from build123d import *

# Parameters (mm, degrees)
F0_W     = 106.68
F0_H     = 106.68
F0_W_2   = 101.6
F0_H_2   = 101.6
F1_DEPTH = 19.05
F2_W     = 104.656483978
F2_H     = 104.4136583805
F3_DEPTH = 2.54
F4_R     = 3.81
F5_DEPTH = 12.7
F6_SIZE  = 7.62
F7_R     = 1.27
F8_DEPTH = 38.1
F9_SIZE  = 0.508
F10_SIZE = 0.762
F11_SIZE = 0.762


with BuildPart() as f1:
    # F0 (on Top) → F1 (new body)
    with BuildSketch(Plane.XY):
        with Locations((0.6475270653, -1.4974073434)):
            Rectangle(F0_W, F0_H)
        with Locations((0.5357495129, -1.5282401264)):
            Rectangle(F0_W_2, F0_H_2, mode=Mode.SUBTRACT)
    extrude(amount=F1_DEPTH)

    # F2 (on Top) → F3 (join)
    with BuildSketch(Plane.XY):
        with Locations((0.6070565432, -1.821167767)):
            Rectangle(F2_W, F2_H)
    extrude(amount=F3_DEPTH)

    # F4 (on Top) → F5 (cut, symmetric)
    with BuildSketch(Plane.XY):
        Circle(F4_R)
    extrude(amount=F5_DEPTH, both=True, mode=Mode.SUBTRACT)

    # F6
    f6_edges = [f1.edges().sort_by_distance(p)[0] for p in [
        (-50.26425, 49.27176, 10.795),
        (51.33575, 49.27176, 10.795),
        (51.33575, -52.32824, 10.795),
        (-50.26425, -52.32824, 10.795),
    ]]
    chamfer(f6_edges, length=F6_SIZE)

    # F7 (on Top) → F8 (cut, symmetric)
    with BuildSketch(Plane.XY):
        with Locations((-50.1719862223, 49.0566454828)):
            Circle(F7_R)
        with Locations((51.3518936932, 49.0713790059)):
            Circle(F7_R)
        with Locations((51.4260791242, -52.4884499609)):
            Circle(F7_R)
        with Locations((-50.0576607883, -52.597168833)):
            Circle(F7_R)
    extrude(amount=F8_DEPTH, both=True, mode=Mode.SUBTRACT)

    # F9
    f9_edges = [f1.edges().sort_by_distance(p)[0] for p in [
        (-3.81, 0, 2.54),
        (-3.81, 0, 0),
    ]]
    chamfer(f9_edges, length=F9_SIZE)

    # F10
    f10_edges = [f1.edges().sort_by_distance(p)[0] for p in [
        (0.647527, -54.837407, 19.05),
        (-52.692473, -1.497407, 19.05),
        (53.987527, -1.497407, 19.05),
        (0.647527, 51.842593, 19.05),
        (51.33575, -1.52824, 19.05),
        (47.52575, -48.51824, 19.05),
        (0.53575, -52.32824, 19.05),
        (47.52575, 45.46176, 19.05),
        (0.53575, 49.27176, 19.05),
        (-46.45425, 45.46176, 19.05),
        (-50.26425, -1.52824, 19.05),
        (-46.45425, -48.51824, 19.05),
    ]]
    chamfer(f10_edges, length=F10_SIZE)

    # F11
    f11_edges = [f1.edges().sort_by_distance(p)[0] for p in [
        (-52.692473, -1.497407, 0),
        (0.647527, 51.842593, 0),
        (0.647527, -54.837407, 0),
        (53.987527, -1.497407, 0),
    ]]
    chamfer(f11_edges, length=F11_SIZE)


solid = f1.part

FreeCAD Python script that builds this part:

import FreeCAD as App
import Part
import Sketcher

V = App.Vector
Q = App.Units.Quantity


def edges_at(feature, points):
    """Names of the edges that pass closest to the given points."""
    edges = feature.Shape.Edges
    near = lambda p: min(range(len(edges)), key=lambda i: edges[i].distToShape(Part.Vertex(*p))[0])
    return sorted({f"Edge{near(p) + 1}" for p in points})

doc = App.newDocument("Part")
params = doc.addObject("Spreadsheet::Sheet", "Params")
for row, (alias, value) in enumerate([
    ("sketch1_width", "4 in"),
    ("sketch1_width2", "4.2 in"),
    ("pad1_length", "0.75 in"),
    ("pad2_length", "0.1 in"),
    ("sketch3_diameter", "0.3 in"),
    ("pocket1_length", "1 in"),
    ("chamfer_size", "0.3 in"),
    ("sketch4_diameter", "0.1 in"),
    ("pocket2_length", "3 in"),
    ("chamfer2_size", "0.02 in"),
    ("chamfer3_size", "0.03 in"),
    ("chamfer4_size", "0.03 in"),
], start=1):
    params.set(f"A{row}", alias)
    params.set(f"B{row}", "=" + value)
    params.setAlias(f"B{row}", alias)

body = doc.addObject("PartDesign::Body", "Body")

# Sketch on XY plane
sketch1 = doc.addObject("Sketcher::SketchObject", "Sketch")
body.addObject(sketch1)
sketch1.AttachmentSupport = (doc.XY_Plane, [""])
sketch1.MapMode = "FlatFace"
sketch1.addGeometry([
    Part.LineSegment(V(-53, 52, 0), V(-53, -55, 0)),  # 0
    Part.LineSegment(V(-53, -55, 0), V(54, -55, 0)),  # 1
    Part.LineSegment(V(54, -55, 0), V(54, 52, 0)),  # 2
    Part.LineSegment(V(54, 52, 0), V(-53, 52, 0)),  # 3
    Part.LineSegment(V(51, -52, 0), V(-50, -52, 0)),  # 4
    Part.LineSegment(V(-50, -52, 0), V(-50, 49, 0)),  # 5
    Part.LineSegment(V(-50, 49, 0), V(51, 49, 0)),  # 6
    Part.LineSegment(V(51, 49, 0), V(51, -52, 0)),  # 7
], False)
sketch1.addConstraint([
    Sketcher.Constraint("Coincident", 0, 2, 1, 1),
    Sketcher.Constraint("Coincident", 1, 2, 2, 1),
    Sketcher.Constraint("Coincident", 2, 2, 3, 1),
    Sketcher.Constraint("Coincident", 3, 2, 0, 1),
    Sketcher.Constraint("Coincident", 4, 2, 5, 1),
    Sketcher.Constraint("Coincident", 5, 2, 6, 1),
    Sketcher.Constraint("Coincident", 6, 2, 7, 1),
    Sketcher.Constraint("Coincident", 7, 2, 4, 1),
    Sketcher.Constraint("Vertical", 0),
    Sketcher.Constraint("Horizontal", 1),
    Sketcher.Constraint("Vertical", 2),
    Sketcher.Constraint("Horizontal", 3),
    Sketcher.Constraint("Horizontal", 4),
    Sketcher.Constraint("Vertical", 5),
    Sketcher.Constraint("Horizontal", 6),
    Sketcher.Constraint("Vertical", 7),
    Sketcher.Constraint("Equal", 3, 0),
    Sketcher.Constraint("Equal", 6, 5),
    Sketcher.Constraint("DistanceX", 4, 2, 4, 1, Q("4 in")),
    Sketcher.Constraint("DistanceX", 1, 1, 1, 2, Q("4.2 in")),
    Sketcher.Constraint("DistanceX", 4, 2, -1, 1, Q("50.26425 mm")),
    Sketcher.Constraint("DistanceY", 4, 2, -1, 1, Q("52.32824 mm")),
    Sketcher.Constraint("DistanceX", 0, 2, -1, 1, Q("52.692473 mm")),
    Sketcher.Constraint("DistanceY", 0, 2, -1, 1, Q("54.837407 mm")),
])
sketch1.setExpression("Constraints[18]", "Params.sketch1_width")
sketch1.setExpression("Constraints[19]", "Params.sketch1_width2")
pad1 = doc.addObject("PartDesign::Pad", "Pad")
body.addObject(pad1)
pad1.Profile = sketch1
pad1.setExpression("Length", "Params.pad1_length")

# Sketch on XY plane
sketch2 = doc.addObject("Sketcher::SketchObject", "Sketch001")
body.addObject(sketch2)
sketch2.AttachmentSupport = (doc.XY_Plane, [""])
sketch2.MapMode = "FlatFace"
sketch2.addGeometry([
    Part.LineSegment(V(-52, 50, 0), V(-52, -54, 0)),
    Part.LineSegment(V(-52, -54, 0), V(53, -54, 0)),
    Part.LineSegment(V(53, -54, 0), V(53, 50, 0)),
    Part.LineSegment(V(53, 50, 0), V(-52, 50, 0)),
], False)
sketch2.addConstraint([
    Sketcher.Constraint("Coincident", 0, 2, 1, 1),
    Sketcher.Constraint("Coincident", 1, 2, 2, 1),
    Sketcher.Constraint("Coincident", 2, 2, 3, 1),
    Sketcher.Constraint("Coincident", 3, 2, 0, 1),
    Sketcher.Constraint("Vertical", 0),
    Sketcher.Constraint("Horizontal", 1),
    Sketcher.Constraint("Vertical", 2),
    Sketcher.Constraint("Horizontal", 3),
    Sketcher.Constraint("DistanceY", 0, 2, 0, 1, Q("104.413658 mm")),
    Sketcher.Constraint("DistanceX", -1, 1, 1, 2, Q("52.935299 mm")),
    Sketcher.Constraint("DistanceX", 1, 1, 1, 2, Q("104.656484 mm")),
    Sketcher.Constraint("DistanceY", -1, 1, 2, 2, Q("50.385661 mm")),
])
pad2 = doc.addObject("PartDesign::Pad", "Pad001")
body.addObject(pad2)
pad2.Profile = sketch2
pad2.setExpression("Length", "Params.pad2_length")

# Sketch on XY plane
sketch3 = doc.addObject("Sketcher::SketchObject", "Sketch002")
body.addObject(sketch3)
sketch3.AttachmentSupport = (doc.XY_Plane, [""])
sketch3.MapMode = "FlatFace"
sketch3.addGeometry(Part.Circle(V(0, 0, 0), V(0, 0, 1), 3.8), False)
sketch3.addConstraint([
    Sketcher.Constraint("Coincident", 0, 3, -1, 1),
    Sketcher.Constraint("Diameter", 0, Q("0.3 in")),
])
sketch3.setExpression("Constraints[1]", "Params.sketch3_diameter")
pocket1 = doc.addObject("PartDesign::Pocket", "Pocket")
body.addObject(pocket1)
pocket1.Profile = sketch3
pocket1.setExpression("Length", "Params.pocket1_length")
pocket1.Midplane = True
doc.recompute()

chamfer = doc.addObject("PartDesign::Chamfer", "Chamfer")
body.addObject(chamfer)
chamfer.Base = (pocket1, edges_at(pocket1, [
    (-50.264, 49.272, 10.795),
    (51.336, 49.272, 10.795),
    (51.336, -52.328, 10.795),
    (-50.264, -52.328, 10.795),
]))
chamfer.setExpression("Size", "Params.chamfer_size")

# Sketch on XY plane
sketch4 = doc.addObject("Sketcher::SketchObject", "Sketch003")
body.addObject(sketch4)
sketch4.AttachmentSupport = (doc.XY_Plane, [""])
sketch4.MapMode = "FlatFace"
sketch4.addGeometry([
    Part.Circle(V(-50.2, 49.1, 0), V(0, 0, 1), 1.3),
    Part.Circle(V(51.4, 49.1, 0), V(0, 0, 1), 1.3),
    Part.Circle(V(51.4, -52.5, 0), V(0, 0, 1), 1.3),
    Part.Circle(V(-50.1, -52.6, 0), V(0, 0, 1), 1.3),
], False)
sketch4.addConstraint([
    Sketcher.Constraint("Equal", 0, 1),
    Sketcher.Constraint("Equal", 1, 2),
    Sketcher.Constraint("Equal", 2, 3),
    Sketcher.Constraint("Diameter", 0, Q("0.1 in")),
    Sketcher.Constraint("DistanceY", -1, 1, 1, 3, Q("49.071379 mm")),
    Sketcher.Constraint("DistanceX", -1, 1, 2, 3, Q("51.426079 mm")),
    Sketcher.Constraint("DistanceY", 2, 3, -1, 1, Q("52.48845 mm")),
    Sketcher.Constraint("DistanceX", 3, 3, -1, 1, Q("50.057661 mm")),
    Sketcher.Constraint("DistanceY", 3, 3, -1, 1, Q("52.597169 mm")),
    Sketcher.Constraint("DistanceX", 0, 3, 1, 3, Q("101.52388 mm")),
    Sketcher.Constraint("DistanceX", 0, 3, -1, 1, Q("50.171986 mm")),
    Sketcher.Constraint("DistanceY", -1, 1, 0, 3, Q("49.056645 mm")),
])
sketch4.setExpression("Constraints[3]", "Params.sketch4_diameter")
pocket2 = doc.addObject("PartDesign::Pocket", "Pocket001")
body.addObject(pocket2)
pocket2.Profile = sketch4
pocket2.setExpression("Length", "Params.pocket2_length")
pocket2.Midplane = True
doc.recompute()

chamfer2 = doc.addObject("PartDesign::Chamfer", "Chamfer001")
body.addObject(chamfer2)
chamfer2.Base = (pocket2, edges_at(pocket2, [(-3.81, 0, 2.54), (-3.81, 0, 0)]))
chamfer2.setExpression("Size", "Params.chamfer2_size")
doc.recompute()

chamfer3 = doc.addObject("PartDesign::Chamfer", "Chamfer002")
body.addObject(chamfer3)
chamfer3.Base = (chamfer2, edges_at(chamfer2, [
    (0.648, -54.837, 19.05),
    (-52.692, -1.497, 19.05),
    (53.988, -1.497, 19.05),
    (0.648, 51.843, 19.05),
    (51.336, -1.528, 19.05),
    (47.526, -48.518, 19.05),
    (0.536, -52.328, 19.05),
    (47.526, 45.462, 19.05),
    (0.536, 49.272, 19.05),
    (-46.454, 45.462, 19.05),
    (-50.264, -1.528, 19.05),
    (-46.454, -48.518, 19.05),
]))
chamfer3.setExpression("Size", "Params.chamfer3_size")
doc.recompute()

chamfer4 = doc.addObject("PartDesign::Chamfer", "Chamfer003")
body.addObject(chamfer4)
chamfer4.Base = (chamfer3, edges_at(chamfer3, [
    (-52.692, -1.497, 0),
    (0.648, 51.843, 0),
    (0.648, -54.837, 0),
    (53.988, -1.497, 0),
]))
chamfer4.setExpression("Size", "Params.chamfer4_size")

doc.recompute()
